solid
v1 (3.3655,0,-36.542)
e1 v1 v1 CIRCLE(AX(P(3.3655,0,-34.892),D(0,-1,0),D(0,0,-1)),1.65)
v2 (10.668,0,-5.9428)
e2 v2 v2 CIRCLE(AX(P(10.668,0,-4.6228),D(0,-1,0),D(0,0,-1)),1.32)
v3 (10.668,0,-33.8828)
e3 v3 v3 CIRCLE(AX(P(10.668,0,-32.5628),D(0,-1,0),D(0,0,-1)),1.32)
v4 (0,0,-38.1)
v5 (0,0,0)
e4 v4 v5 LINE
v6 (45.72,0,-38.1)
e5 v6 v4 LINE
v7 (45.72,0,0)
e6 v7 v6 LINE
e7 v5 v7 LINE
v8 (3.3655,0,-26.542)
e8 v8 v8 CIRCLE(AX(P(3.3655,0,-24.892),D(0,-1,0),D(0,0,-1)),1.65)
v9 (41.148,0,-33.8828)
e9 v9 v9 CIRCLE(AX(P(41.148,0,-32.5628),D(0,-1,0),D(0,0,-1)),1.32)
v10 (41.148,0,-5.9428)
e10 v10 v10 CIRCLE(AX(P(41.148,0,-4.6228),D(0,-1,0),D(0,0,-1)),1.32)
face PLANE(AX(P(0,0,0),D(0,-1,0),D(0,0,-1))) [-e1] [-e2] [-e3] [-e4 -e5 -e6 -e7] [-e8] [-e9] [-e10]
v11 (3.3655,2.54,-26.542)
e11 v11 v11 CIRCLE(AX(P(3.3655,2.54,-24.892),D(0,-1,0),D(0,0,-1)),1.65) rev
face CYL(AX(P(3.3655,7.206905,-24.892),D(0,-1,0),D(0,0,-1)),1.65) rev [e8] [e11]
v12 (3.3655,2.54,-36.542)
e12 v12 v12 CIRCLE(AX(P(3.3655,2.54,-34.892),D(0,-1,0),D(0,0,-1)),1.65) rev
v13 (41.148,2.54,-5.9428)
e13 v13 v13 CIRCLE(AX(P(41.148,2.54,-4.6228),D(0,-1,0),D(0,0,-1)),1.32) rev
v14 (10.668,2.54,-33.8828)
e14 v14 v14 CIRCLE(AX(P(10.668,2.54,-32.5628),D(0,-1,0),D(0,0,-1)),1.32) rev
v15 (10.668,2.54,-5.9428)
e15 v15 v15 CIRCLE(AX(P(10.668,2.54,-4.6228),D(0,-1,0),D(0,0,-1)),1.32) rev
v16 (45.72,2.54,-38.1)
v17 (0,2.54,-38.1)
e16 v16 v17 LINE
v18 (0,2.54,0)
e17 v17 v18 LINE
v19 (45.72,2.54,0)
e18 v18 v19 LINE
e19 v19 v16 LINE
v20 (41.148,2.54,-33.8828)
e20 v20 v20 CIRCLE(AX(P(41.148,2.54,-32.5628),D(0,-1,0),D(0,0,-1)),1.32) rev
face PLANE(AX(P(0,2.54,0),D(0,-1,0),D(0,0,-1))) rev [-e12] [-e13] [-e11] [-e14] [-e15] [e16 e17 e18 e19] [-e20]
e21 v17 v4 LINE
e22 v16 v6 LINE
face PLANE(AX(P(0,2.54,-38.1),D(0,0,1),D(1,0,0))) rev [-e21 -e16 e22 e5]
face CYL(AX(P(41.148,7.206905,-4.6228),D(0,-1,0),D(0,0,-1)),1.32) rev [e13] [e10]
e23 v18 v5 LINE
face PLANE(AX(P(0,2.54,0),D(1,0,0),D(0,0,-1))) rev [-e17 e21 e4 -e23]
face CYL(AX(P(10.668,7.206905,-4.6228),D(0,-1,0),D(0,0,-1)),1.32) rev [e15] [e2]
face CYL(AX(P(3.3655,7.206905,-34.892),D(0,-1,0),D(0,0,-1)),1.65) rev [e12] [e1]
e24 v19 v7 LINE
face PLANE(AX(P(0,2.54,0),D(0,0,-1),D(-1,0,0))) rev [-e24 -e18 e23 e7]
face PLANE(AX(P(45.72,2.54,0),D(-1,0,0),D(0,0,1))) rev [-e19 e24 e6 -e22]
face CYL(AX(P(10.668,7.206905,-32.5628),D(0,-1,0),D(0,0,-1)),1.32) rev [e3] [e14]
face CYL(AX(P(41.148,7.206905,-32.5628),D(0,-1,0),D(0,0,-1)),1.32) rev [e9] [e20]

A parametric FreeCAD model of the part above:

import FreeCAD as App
import Part
import Sketcher

V = App.Vector
Q = App.Units.Quantity

doc = App.newDocument("Part")
body = doc.addObject("PartDesign::Body", "Body")

sketch1 = body.newObject("Sketcher::SketchObject", "Sketch")
sketch1.AttachmentSupport = (doc.getObject("XZ_Plane"), [""])
sketch1.MapMode = "FlatFace"
sketch1.addGeometry(Part.LineSegment(V(0, -38.1, 0), V(0, 0, 0)), False)
sketch1.addGeometry(Part.LineSegment(V(0, 0, 0), V(45.72, 0, 0)), False)
sketch1.addGeometry(Part.LineSegment(V(45.72, 0, 0), V(45.72, -38.1, 0)), False)
sketch1.addGeometry(Part.LineSegment(V(45.72, -38.1, 0), V(0, -38.1, 0)), False)
sketch1.addConstraint(Sketcher.Constraint("Coincident", 0, 2, 1, 1))
sketch1.addConstraint(Sketcher.Constraint("Coincident", 1, 2, 2, 1))
sketch1.addConstraint(Sketcher.Constraint("Coincident", 2, 2, 3, 1))
sketch1.addConstraint(Sketcher.Constraint("Coincident", 3, 2, 0, 1))
sketch1.addConstraint(Sketcher.Constraint("Vertical", 0))
sketch1.addConstraint(Sketcher.Constraint("Horizontal", 1))
sketch1.addConstraint(Sketcher.Constraint("Vertical", 2))
sketch1.addConstraint(Sketcher.Constraint("Horizontal", 3))
sketch1.addConstraint(Sketcher.Constraint("Coincident", 0, 2, -1, 1))
sketch1.addConstraint(Sketcher.Constraint("DistanceX", 1, 1, 1, 2, Q("1.8 in")))
sketch1.addConstraint(Sketcher.Constraint("DistanceY", 0, 1, 0, 2, Q("1.5 in")))
pad1 = body.newObject("PartDesign::Pad", "Pad")
pad1.Profile = sketch1
pad1.Length = Q("0.1 in")
pad1.Reversed = True

sketch2 = body.newObject("Sketcher::SketchObject", "Sketch001")
sketch2.AttachmentSupport = (doc.getObject("XZ_Plane"), [""])
sketch2.MapMode = "FlatFace"
sketch2.addGeometry(Part.Circle(V(3.3655, -24.892, 0), V(0, 0, 1), 1.65), False)
sketch2.addGeometry(Part.Circle(V(3.3655, -34.892, 0), V(0, 0, 1), 1.65), False)
sketch2.addGeometry(Part.Circle(V(10.668, -4.6228, 0), V(0, 0, 1), 1.32), False)
sketch2.addGeometry(Part.Circle(V(10.668, -32.5628, 0), V(0, 0, 1), 1.32), False)
sketch2.addGeometry(Part.Circle(V(41.148, -4.6228, 0), V(0, 0, 1), 1.32), False)
sketch2.addGeometry(Part.Circle(V(41.148, -32.5628, 0), V(0, 0, 1), 1.32), False)
sketch2.addConstraint(Sketcher.Constraint("Equal", 0, 1))
sketch2.addConstraint(Sketcher.Constraint("Equal", 2, 3))
sketch2.addConstraint(Sketcher.Constraint("Equal", 3, 4))
sketch2.addConstraint(Sketcher.Constraint("Equal", 4, 5))
sketch2.addConstraint(Sketcher.Constraint("Horizontal", 2, 3, 4, 3))
sketch2.addConstraint(Sketcher.Constraint("Horizontal", 3, 3, 5, 3))
sketch2.addConstraint(Sketcher.Constraint("Vertical", 0, 3, 1, 3))
sketch2.addConstraint(Sketcher.Constraint("Vertical", 2, 3, 3, 3))
sketch2.addConstraint(Sketcher.Constraint("Vertical", 4, 3, 5, 3))
sketch2.addConstraint(Sketcher.Constraint("DistanceY", 3, 3, 2, 3, Q("1.1 in")))
sketch2.addConstraint(Sketcher.Constraint("DistanceX", 2, 3, 4, 3, Q("1.2 in")))
sketch2.addConstraint(Sketcher.Constraint("Diameter", 0, Q("3.3 mm")))
sketch2.addConstraint(Sketcher.Constraint("Diameter", 2, Q("2.64 mm")))
sketch2.addConstraint(Sketcher.Constraint("DistanceY", 0, 3, -1, 1, Q("0.98 in")))
sketch2.addConstraint(Sketcher.Constraint("DistanceX", -1, 1, 2, 3, Q("0.42 in")))
sketch2.addConstraint(Sketcher.Constraint("DistanceY", 2, 3, -1, 1, Q("0.182 in")))
sketch2.addConstraint(Sketcher.Constraint("DistanceX", -1, 1, 0, 3, Q("0.1325 in")))
sketch2.addConstraint(Sketcher.Constraint("DistanceY", 1, 3, -1, 1, Q("34.892 mm")))
pocket1 = body.newObject("PartDesign::Pocket", "Pocket")
pocket1.Profile = sketch2
pocket1.Length = Q("0.1 in")

doc.recompute()
